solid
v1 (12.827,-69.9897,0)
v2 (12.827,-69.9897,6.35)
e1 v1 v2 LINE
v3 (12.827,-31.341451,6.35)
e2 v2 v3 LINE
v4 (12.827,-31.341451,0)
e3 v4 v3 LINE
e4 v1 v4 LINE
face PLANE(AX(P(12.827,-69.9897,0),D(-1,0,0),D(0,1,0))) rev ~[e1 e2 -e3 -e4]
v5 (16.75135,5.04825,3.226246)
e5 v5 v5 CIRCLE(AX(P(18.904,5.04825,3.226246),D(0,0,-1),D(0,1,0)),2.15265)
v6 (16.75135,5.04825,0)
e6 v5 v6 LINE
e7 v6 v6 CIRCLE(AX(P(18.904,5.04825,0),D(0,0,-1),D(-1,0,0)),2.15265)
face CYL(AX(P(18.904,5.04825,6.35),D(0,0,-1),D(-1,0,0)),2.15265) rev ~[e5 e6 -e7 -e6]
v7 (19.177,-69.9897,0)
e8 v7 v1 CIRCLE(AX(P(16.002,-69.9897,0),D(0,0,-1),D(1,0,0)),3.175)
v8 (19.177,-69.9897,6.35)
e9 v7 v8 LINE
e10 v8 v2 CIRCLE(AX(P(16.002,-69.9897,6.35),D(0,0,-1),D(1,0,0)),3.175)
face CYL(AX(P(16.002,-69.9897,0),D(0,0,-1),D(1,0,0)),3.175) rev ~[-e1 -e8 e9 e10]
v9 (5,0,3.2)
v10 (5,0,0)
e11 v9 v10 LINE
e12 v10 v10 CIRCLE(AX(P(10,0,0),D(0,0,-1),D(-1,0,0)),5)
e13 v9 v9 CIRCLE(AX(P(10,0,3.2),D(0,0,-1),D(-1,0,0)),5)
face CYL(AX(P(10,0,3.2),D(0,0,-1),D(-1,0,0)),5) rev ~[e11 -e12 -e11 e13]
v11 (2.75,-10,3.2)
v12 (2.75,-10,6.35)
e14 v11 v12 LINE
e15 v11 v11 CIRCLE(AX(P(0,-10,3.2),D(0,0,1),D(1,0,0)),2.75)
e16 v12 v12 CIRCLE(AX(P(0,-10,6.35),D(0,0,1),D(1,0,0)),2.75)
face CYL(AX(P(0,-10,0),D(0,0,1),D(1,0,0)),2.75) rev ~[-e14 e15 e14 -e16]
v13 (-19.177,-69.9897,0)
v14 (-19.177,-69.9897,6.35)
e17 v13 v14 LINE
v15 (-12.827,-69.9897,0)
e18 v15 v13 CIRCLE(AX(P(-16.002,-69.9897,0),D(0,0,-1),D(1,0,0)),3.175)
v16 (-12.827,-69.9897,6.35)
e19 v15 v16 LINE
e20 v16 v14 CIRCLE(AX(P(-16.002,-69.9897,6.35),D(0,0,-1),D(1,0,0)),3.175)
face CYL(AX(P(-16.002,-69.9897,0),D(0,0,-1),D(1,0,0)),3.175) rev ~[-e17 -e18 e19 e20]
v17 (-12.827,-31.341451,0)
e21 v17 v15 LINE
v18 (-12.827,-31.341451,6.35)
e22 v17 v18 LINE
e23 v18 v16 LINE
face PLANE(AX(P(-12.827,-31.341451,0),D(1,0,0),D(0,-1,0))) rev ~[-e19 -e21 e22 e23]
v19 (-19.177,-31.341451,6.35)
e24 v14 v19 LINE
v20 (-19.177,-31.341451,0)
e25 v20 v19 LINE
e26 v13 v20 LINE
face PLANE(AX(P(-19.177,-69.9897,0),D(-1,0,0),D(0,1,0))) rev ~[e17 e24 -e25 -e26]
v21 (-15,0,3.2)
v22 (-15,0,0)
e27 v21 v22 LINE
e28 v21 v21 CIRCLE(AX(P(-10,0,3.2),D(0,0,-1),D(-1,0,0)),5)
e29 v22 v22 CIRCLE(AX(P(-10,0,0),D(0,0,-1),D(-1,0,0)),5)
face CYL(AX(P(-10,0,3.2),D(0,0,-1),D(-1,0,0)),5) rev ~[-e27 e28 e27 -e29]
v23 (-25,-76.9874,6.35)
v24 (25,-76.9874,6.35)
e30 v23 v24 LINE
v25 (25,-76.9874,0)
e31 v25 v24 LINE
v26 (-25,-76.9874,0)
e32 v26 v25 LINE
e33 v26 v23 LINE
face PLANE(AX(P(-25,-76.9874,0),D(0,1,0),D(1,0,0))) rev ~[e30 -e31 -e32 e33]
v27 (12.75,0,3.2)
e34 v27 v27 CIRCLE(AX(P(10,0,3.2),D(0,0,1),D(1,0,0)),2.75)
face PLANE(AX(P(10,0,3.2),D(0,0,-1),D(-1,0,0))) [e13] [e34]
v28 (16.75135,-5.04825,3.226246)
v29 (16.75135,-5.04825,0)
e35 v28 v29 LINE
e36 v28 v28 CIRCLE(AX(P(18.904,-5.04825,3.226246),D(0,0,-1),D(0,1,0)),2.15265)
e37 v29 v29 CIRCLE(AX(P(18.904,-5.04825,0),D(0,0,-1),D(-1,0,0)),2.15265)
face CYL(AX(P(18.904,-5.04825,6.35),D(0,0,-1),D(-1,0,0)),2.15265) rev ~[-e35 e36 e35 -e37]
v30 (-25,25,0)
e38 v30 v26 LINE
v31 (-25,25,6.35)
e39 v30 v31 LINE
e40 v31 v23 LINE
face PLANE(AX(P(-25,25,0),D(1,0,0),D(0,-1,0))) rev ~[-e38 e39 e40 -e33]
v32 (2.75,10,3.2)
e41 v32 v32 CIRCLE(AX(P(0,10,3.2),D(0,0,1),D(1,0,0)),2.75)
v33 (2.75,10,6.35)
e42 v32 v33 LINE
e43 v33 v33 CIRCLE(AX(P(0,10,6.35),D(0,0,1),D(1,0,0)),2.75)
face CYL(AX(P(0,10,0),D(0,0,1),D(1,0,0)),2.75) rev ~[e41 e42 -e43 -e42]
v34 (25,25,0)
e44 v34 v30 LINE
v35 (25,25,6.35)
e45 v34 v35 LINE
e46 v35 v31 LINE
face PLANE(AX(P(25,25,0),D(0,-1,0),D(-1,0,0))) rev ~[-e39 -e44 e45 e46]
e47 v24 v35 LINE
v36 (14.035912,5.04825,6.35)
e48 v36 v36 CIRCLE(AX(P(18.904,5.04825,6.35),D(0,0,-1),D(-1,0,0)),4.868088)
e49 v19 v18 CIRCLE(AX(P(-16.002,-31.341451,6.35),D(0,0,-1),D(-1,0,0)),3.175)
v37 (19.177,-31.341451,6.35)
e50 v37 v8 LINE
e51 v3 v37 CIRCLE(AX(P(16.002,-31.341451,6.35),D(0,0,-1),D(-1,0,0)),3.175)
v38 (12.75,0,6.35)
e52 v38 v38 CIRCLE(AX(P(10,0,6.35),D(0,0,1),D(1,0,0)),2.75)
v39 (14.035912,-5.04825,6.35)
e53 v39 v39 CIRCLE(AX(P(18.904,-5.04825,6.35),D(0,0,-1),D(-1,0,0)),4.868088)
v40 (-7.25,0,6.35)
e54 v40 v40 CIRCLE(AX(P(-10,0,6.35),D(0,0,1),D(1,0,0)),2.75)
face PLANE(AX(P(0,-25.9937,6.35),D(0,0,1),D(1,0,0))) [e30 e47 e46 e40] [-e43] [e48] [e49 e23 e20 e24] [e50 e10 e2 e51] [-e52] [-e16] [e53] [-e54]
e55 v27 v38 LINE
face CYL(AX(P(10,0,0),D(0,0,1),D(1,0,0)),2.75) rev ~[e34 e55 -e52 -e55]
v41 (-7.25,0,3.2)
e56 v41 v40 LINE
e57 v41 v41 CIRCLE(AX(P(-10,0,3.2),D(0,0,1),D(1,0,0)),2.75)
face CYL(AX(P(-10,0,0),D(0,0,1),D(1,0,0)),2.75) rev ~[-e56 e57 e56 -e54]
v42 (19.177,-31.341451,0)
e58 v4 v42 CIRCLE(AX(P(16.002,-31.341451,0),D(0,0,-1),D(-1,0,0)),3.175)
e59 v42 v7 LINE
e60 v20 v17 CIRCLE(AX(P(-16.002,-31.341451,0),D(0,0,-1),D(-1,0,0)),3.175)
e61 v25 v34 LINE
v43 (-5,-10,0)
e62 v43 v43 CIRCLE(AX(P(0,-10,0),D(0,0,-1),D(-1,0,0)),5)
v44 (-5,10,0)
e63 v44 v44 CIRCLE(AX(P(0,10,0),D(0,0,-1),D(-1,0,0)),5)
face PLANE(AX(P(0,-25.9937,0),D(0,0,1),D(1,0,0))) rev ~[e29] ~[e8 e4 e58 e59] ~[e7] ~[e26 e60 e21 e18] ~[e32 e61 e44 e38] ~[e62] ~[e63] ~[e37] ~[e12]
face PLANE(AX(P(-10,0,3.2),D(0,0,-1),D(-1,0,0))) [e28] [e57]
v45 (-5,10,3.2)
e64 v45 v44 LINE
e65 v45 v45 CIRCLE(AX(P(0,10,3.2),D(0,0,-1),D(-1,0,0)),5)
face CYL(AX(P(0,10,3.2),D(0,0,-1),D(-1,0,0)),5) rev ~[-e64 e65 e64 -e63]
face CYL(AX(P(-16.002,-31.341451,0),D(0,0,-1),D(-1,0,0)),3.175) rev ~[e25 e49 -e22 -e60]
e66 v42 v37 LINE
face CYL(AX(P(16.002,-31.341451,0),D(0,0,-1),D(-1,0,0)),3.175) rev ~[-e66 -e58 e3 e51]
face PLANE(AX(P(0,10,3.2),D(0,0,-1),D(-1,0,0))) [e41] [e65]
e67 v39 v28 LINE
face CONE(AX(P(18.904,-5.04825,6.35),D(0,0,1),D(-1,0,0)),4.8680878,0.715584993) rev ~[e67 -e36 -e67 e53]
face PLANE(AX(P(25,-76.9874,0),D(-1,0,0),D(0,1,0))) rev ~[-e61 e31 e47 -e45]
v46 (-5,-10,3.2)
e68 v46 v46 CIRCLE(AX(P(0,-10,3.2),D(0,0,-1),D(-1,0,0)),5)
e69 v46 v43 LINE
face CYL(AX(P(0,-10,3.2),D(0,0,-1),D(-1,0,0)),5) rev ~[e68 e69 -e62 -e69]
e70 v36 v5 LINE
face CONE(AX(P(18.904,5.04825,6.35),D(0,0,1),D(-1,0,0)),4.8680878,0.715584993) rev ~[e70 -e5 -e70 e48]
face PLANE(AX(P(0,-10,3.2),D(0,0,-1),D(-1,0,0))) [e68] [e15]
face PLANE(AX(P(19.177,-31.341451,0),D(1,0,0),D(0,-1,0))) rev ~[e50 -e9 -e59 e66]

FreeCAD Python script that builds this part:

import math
import FreeCAD as App
import Part
import Sketcher

V = App.Vector

doc = App.newDocument("Part")
body = doc.addObject("PartDesign::Body", "Body")

sketch1 = body.newObject("Sketcher::SketchObject", "Sketch")
sketch1.AttachmentSupport = (doc.getObject("XY_Plane"), [""])
sketch1.MapMode = "FlatFace"
sketch1.addGeometry([
    Part.LineSegment(V(25, -77, 0), V(25, 25, 0)),
    Part.LineSegment(V(25, 25, 0), V(-25, 25, 0)),
    Part.LineSegment(V(-25, 25, 0), V(-25, -77, 0)),
    Part.LineSegment(V(-25, -77, 0), V(25, -77, 0)),
    Part.LineSegment(V(-19.2, -70, 0), V(-19.2, -31.3, 0)),
    Part.ArcOfCircle(Part.Circle(V(-16, -31.3, 0), V(0, 0, 1), 3.2), math.radians(0), math.radians(180)),
    Part.LineSegment(V(-12.8, -31.3, 0), V(-12.8, -70, 0)),
    Part.ArcOfCircle(Part.Circle(V(-16, -70, 0), V(0, 0, 1), 3.2), math.radians(180), math.radians(360)),
    Part.LineSegment(V(12.8, -70, 0), V(12.8, -31.3, 0)),
    Part.ArcOfCircle(Part.Circle(V(16, -31.3, 0), V(0, 0, 1), 3.2), math.radians(0), math.radians(180)),
    Part.LineSegment(V(19.2, -31.3, 0), V(19.2, -70, 0)),
    Part.ArcOfCircle(Part.Circle(V(16, -70, 0), V(0, 0, 1), 3.2), math.radians(180), math.radians(360)),
], False)
sketch1.addConstraint([
    Sketcher.Constraint("Coincident", 0, 2, 1, 1),
    Sketcher.Constraint("Coincident", 1, 2, 2, 1),
    Sketcher.Constraint("Coincident", 2, 2, 3, 1),
    Sketcher.Constraint("Coincident", 3, 2, 0, 1),
    Sketcher.Constraint("Tangent", 4, 2, 5, 2),
    Sketcher.Constraint("Tangent", 5, 1, 6, 1),
    Sketcher.Constraint("Tangent", 6, 2, 7, 2),
    Sketcher.Constraint("Tangent", 7, 1, 4, 1),
    Sketcher.Constraint("Tangent", 8, 2, 9, 2),
    Sketcher.Constraint("Tangent", 9, 1, 10, 1),
    Sketcher.Constraint("Tangent", 10, 2, 11, 2),
    Sketcher.Constraint("Tangent", 11, 1, 8, 1),
    Sketcher.Constraint("Vertical", 0),
    Sketcher.Constraint("Horizontal", 1),
    Sketcher.Constraint("Vertical", 2),
    Sketcher.Constraint("Horizontal", 3),
    Sketcher.Constraint("Vertical", 4),
    Sketcher.Constraint("Vertical", 6),
    Sketcher.Constraint("Vertical", 8),
    Sketcher.Constraint("Vertical", 10),
    Sketcher.Constraint("Equal", 7, 9),
    Sketcher.Constraint("Symmetric", 5, 3, 9, 3, -2),
    Sketcher.Constraint("Horizontal", 7, 3, 11, 3),
    Sketcher.Constraint("DistanceX", 1, 2, 1, 1, 50.0),
    Sketcher.Constraint("DistanceX", -1, 1, 0, 2, 25.0),
    Sketcher.Constraint("DistanceY", -1, 1, 0, 2, 25.0),
    Sketcher.Constraint("Radius", 5, 3.175),
    Sketcher.Constraint("DistanceY", 0, 1, 0, 2, 101.9874),
    Sketcher.Constraint("DistanceX", 5, 3, -1, 1, 16.002),
    Sketcher.Constraint("DistanceY", 4, 1, 4, 2, 38.648249),
    Sketcher.Constraint("DistanceY", 7, 3, -1, 1, 69.9897),
])
pad1 = body.newObject("PartDesign::Pad", "Pad")
pad1.Profile = sketch1
pad1.Length = 6.35

sketch2 = body.newObject("Sketcher::SketchObject", "Sketch001")
sketch2.AttachmentSupport = (doc.getObject("XY_Plane"), [""])
sketch2.MapMode = "FlatFace"
sketch2.AttachmentOffset = App.Placement(V(0, 0, 6.35), App.Rotation())
sketch2.addGeometry([
    Part.Circle(V(18.9, 5, 0), V(0, 0, 1), 2.2),
    Part.Circle(V(18.9, -5, 0), V(0, 0, 1), 2.2),
], False)
sketch2.addConstraint([
    Sketcher.Constraint("Equal", 0, 1),
    Sketcher.Constraint("Symmetric", 0, 3, 1, 3, -1),
    Sketcher.Constraint("Diameter", 0, 4.3053),
    Sketcher.Constraint("DistanceX", -1, 1, 0, 3, 18.904),
    Sketcher.Constraint("DistanceY", 1, 3, 0, 3, 10.0965),
])
doc.recompute()
hole = body.newObject("PartDesign::Hole", "Hole")
hole.Profile = sketch2
hole.ThreadType = "None"
hole.Diameter = 4.3053
hole.DepthType = "ThroughAll"
hole.HoleCutType = "Countersink"
hole.HoleCutDiameter = 9.736176
hole.HoleCutCountersinkAngle = 82

sketch3 = body.newObject("Sketcher::SketchObject", "Sketch002")
sketch3.AttachmentSupport = (doc.getObject("XY_Plane"), [""])
sketch3.MapMode = "FlatFace"
sketch3.addGeometry([
    Part.Circle(V(0, 10, 0), V(0, 0, 1), 2.8),
    Part.Circle(V(10, 0, 0), V(0, 0, 1), 2.8),
    Part.Circle(V(0, -10, 0), V(0, 0, 1), 2.8),
    Part.Circle(V(-10, 0, 0), V(0, 0, 1), 2.8),
], False)
sketch3.addConstraint([
    Sketcher.Constraint("Equal", 0, 1),
    Sketcher.Constraint("Equal", 1, 2),
    Sketcher.Constraint("Equal", 2, 3),
    Sketcher.Constraint("Symmetric", 0, 3, 2, 3, -1, 1),
    Sketcher.Constraint("Symmetric", 1, 3, 3, 3, -1, 1),
    Sketcher.Constraint("PointOnObject", 0, 3, -2),
    Sketcher.Constraint("PointOnObject", 1, 3, -1),
    Sketcher.Constraint("Diameter", 0, 5.5),
    Sketcher.Constraint("DistanceY", -1, 1, 0, 3, 10.0),
    Sketcher.Constraint("DistanceX", -1, 1, 1, 3, 10.0),
])
doc.recompute()
hole2 = body.newObject("PartDesign::Hole", "Hole001")
hole2.Profile = sketch3
hole2.ThreadType = "None"
hole2.Diameter = 5.5
hole2.DepthType = "ThroughAll"
hole2.HoleCutType = "Counterbore"
hole2.HoleCutDiameter = 10
hole2.HoleCutDepth = 3.2
hole2.Reversed = True

doc.recompute()
